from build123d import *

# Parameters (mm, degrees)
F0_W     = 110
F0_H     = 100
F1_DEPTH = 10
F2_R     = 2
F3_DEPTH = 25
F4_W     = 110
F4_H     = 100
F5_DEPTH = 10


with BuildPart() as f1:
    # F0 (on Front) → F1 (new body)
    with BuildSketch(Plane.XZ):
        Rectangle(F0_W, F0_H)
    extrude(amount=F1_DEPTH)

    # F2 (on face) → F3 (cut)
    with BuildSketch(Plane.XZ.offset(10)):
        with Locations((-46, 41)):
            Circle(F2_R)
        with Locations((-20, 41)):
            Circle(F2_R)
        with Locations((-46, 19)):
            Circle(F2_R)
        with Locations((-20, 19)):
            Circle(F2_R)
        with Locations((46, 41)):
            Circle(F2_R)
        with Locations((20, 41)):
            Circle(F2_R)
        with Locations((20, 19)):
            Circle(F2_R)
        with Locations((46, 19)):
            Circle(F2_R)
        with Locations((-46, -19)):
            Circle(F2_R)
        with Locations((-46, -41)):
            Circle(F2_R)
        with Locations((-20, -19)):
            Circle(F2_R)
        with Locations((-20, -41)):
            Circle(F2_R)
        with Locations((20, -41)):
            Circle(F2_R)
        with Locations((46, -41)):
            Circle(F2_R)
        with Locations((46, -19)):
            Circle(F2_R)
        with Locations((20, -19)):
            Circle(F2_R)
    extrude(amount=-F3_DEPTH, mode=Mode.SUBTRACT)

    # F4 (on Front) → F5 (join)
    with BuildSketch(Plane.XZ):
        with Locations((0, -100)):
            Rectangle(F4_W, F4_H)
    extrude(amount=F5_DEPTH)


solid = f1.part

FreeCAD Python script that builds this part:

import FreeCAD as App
import Part
import Sketcher

V = App.Vector


def add_polygon(sketch, points):
    """Adds a closed chain of lines whose ends are joined by coincident constraints."""
    first, n = sketch.GeometryCount, len(points)
    for a, b in zip(points, points[1:] + points[:1]):
        sketch.addGeometry(Part.LineSegment(App.Vector(*a, 0), App.Vector(*b, 0)), False)
    for i in range(n):
        sketch.addConstraint(Sketcher.Constraint("Coincident", first + i, 2, first + (i + 1) % n, 1))

doc = App.newDocument("Part")
body = doc.addObject("PartDesign::Body", "Body")

sketch1 = body.newObject("Sketcher::SketchObject", "Sketch")
sketch1.AttachmentSupport = (doc.getObject("XZ_Plane"), [""])
sketch1.MapMode = "FlatFace"
add_polygon(sketch1, [(-55, 50), (-55, -50), (55, -50), (55, 50)])
sketch1.addConstraint([
    Sketcher.Constraint("Vertical", 0),
    Sketcher.Constraint("Horizontal", 1),
    Sketcher.Constraint("Vertical", 2),
    Sketcher.Constraint("Horizontal", 3),
    Sketcher.Constraint("Symmetric", 0, 2, 2, 2, -1, 1),
    Sketcher.Constraint("DistanceX", 1, 1, 1, 2, 110.0),
    Sketcher.Constraint("DistanceY", 0, 2, 0, 1, 100.0),
])
pad1 = body.newObject("PartDesign::Pad", "Pad")
pad1.Profile = sketch1
pad1.Length = 10

sketch2 = body.newObject("Sketcher::SketchObject", "Sketch001")
sketch2.AttachmentSupport = (doc.getObject("XZ_Plane"), [""])
sketch2.MapMode = "FlatFace"
sketch2.AttachmentOffset = App.Placement(V(0, 0, 10), App.Rotation())
sketch2.addGeometry([
    Part.Circle(V(-46, 41, 0), V(0, 0, 1), 2),
    Part.Circle(V(-20, 41, 0), V(0, 0, 1), 2),
    Part.Circle(V(-46, 19, 0), V(0, 0, 1), 2),
    Part.Circle(V(-20, 19, 0), V(0, 0, 1), 2),
    Part.Circle(V(46, 41, 0), V(0, 0, 1), 2),
    Part.Circle(V(20, 41, 0), V(0, 0, 1), 2),
    Part.Circle(V(20, 19, 0), V(0, 0, 1), 2),
    Part.Circle(V(46, 19, 0), V(0, 0, 1), 2),
    Part.Circle(V(-46, -19, 0), V(0, 0, 1), 2),
    Part.Circle(V(-46, -41, 0), V(0, 0, 1), 2),
    Part.Circle(V(-20, -19, 0), V(0, 0, 1), 2),
    Part.Circle(V(-20, -41, 0), V(0, 0, 1), 2),
    Part.Circle(V(20, -41, 0), V(0, 0, 1), 2),
    Part.Circle(V(46, -41, 0), V(0, 0, 1), 2),
    Part.Circle(V(46, -19, 0), V(0, 0, 1), 2),
    Part.Circle(V(20, -19, 0), V(0, 0, 1), 2),
], False)
sketch2.addConstraint([
    Sketcher.Constraint("Equal", 0, 1),
    Sketcher.Constraint("Equal", 1, 2),
    Sketcher.Constraint("Equal", 2, 3),
    Sketcher.Constraint("Equal", 3, 4),
    Sketcher.Constraint("Equal", 4, 5),
    Sketcher.Constraint("Equal", 5, 6),
    Sketcher.Constraint("Equal", 6, 7),
    Sketcher.Constraint("Equal", 7, 8),
    Sketcher.Constraint("Equal", 8, 9),
    Sketcher.Constraint("Equal", 9, 10),
    Sketcher.Constraint("Equal", 10, 11),
    Sketcher.Constraint("Equal", 11, 12),
    Sketcher.Constraint("Equal", 12, 13),
    Sketcher.Constraint("Equal", 13, 14),
    Sketcher.Constraint("Equal", 14, 15),
    Sketcher.Constraint("Symmetric", 7, 3, 8, 3, -1, 1),
    Sketcher.Constraint("Symmetric", 4, 3, 9, 3, -1, 1),
    Sketcher.Constraint("Symmetric", 6, 3, 10, 3, -1, 1),
    Sketcher.Constraint("Symmetric", 5, 3, 11, 3, -1, 1),
    Sketcher.Constraint("Symmetric", 1, 3, 12, 3, -1, 1),
    Sketcher.Constraint("Symmetric", 0, 3, 13, 3, -1, 1),
    Sketcher.Constraint("Symmetric", 2, 3, 14, 3, -1, 1),
    Sketcher.Constraint("Symmetric", 3, 3, 15, 3, -1, 1),
    Sketcher.Constraint("Symmetric", 0, 3, 4, 3, -2),
    Sketcher.Constraint("Symmetric", 1, 3, 5, 3, -2),
    Sketcher.Constraint("Symmetric", 3, 3, 6, 3, -2),
    Sketcher.Constraint("Symmetric", 2, 3, 7, 3, -2),
    Sketcher.Constraint("Horizontal", 0, 3, 1, 3),
    Sketcher.Constraint("Horizontal", 2, 3, 3, 3),
    Sketcher.Constraint("Vertical", 0, 3, 2, 3),
    Sketcher.Constraint("Vertical", 1, 3, 3, 3),
    Sketcher.Constraint("Diameter", 0, 4.0),
    Sketcher.Constraint("DistanceX", 0, 3, -1, 1, 46.0),
    Sketcher.Constraint("DistanceY", -1, 1, 0, 3, 41.0),
    Sketcher.Constraint("DistanceX", 1, 3, -1, 1, 20.0),
    Sketcher.Constraint("DistanceY", -1, 1, 2, 3, 19.0),
])
pocket1 = body.newObject("PartDesign::Pocket", "Pocket")
pocket1.Profile = sketch2
pocket1.Length = 25

sketch3 = body.newObject("Sketcher::SketchObject", "Sketch002")
sketch3.AttachmentSupport = (doc.getObject("XZ_Plane"), [""])
sketch3.MapMode = "FlatFace"
add_polygon(sketch3, [(-55, -50), (-55, -150), (55, -150), (55, -50)])
sketch3.addConstraint([
    Sketcher.Constraint("Vertical", 0),
    Sketcher.Constraint("Horizontal", 1),
    Sketcher.Constraint("Vertical", 2),
    Sketcher.Constraint("Horizontal", 3),
    Sketcher.Constraint("DistanceX", 1, 1, 1, 2, 110.0),
    Sketcher.Constraint("DistanceY", 0, 2, 0, 1, 100.0),
    Sketcher.Constraint("DistanceX", 0, 2, -1, 1, 55.0),
    Sketcher.Constraint("DistanceY", 0, 2, -1, 1, 150.0),
])
pad2 = body.newObject("PartDesign::Pad", "Pad001")
pad2.Profile = sketch3
pad2.Length = 10

doc.recompute()
